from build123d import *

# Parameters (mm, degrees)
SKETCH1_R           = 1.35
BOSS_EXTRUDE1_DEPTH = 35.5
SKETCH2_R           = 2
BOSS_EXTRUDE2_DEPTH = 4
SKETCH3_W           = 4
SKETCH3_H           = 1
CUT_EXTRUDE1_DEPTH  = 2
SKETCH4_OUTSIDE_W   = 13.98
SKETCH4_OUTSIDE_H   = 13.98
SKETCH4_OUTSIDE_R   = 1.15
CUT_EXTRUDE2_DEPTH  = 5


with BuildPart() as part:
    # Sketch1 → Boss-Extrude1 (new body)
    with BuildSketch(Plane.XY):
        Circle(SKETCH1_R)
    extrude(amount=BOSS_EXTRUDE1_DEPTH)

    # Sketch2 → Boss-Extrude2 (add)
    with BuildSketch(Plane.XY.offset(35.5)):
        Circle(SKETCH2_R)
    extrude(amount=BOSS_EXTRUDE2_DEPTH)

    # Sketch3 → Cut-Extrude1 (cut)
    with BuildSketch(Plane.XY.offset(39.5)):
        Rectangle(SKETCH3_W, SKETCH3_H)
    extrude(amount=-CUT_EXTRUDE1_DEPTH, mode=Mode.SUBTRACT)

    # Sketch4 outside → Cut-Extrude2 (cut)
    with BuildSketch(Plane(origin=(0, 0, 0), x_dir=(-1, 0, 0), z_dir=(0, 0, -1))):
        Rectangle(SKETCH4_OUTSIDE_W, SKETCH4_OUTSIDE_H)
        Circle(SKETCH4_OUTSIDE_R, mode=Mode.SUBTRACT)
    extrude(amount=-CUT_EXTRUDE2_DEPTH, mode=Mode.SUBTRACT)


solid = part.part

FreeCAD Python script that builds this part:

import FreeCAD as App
import Part
import Sketcher
from FreeCAD import Vector

doc = App.newDocument("Part")
body = doc.addObject("PartDesign::Body", "Body")

# Sketch on XY plane
sketch1 = doc.addObject("Sketcher::SketchObject", "Sketch")
body.addObject(sketch1)
sketch1.AttachmentSupport = (doc.XY_Plane, [""])
sketch1.MapMode = "FlatFace"
sketch1.addGeometry(Part.Circle(Vector(0, 0, 0), Vector(0, 0, 1), 1.4), False)
sketch1.addConstraint([
    Sketcher.Constraint("Coincident", 0, 3, -1, 1),
    Sketcher.Constraint("Diameter", 0, 2.7),
])
pad1 = doc.addObject("PartDesign::Pad", "Pad")
body.addObject(pad1)
pad1.Profile = sketch1
pad1.Length = 35.5

# Sketch on XY plane
sketch2 = doc.addObject("Sketcher::SketchObject", "Sketch001")
body.addObject(sketch2)
sketch2.AttachmentSupport = (doc.XY_Plane, [""])
sketch2.MapMode = "FlatFace"
sketch2.AttachmentOffset = App.Placement(Vector(0, 0, 35.5), App.Rotation())
sketch2.addGeometry(Part.Circle(Vector(0, 0, 0), Vector(0, 0, 1), 2), False)
sketch2.addConstraint([
    Sketcher.Constraint("Coincident", 0, 3, -1, 1),
    Sketcher.Constraint("Diameter", 0, 4.0),
])
pad2 = doc.addObject("PartDesign::Pad", "Pad001")
body.addObject(pad2)
pad2.Profile = sketch2
pad2.Length = 4

# Sketch on XY plane
sketch3 = doc.addObject("Sketcher::SketchObject", "Sketch002")
body.addObject(sketch3)
sketch3.AttachmentSupport = (doc.XY_Plane, [""])
sketch3.MapMode = "FlatFace"
sketch3.AttachmentOffset = App.Placement(Vector(0, 0, 39.5), App.Rotation())
sketch3.addGeometry([
    Part.LineSegment(Vector(-2, 0.5, 0), Vector(-2, -0.5, 0)),
    Part.LineSegment(Vector(-2, -0.5, 0), Vector(2, -0.5, 0)),
    Part.LineSegment(Vector(2, -0.5, 0), Vector(2, 0.5, 0)),
    Part.LineSegment(Vector(2, 0.5, 0), Vector(-2, 0.5, 0)),
], False)
sketch3.addConstraint([
    Sketcher.Constraint("Coincident", 0, 2, 1, 1),
    Sketcher.Constraint("Coincident", 1, 2, 2, 1),
    Sketcher.Constraint("Coincident", 2, 2, 3, 1),
    Sketcher.Constraint("Coincident", 3, 2, 0, 1),
    Sketcher.Constraint("Vertical", 0),
    Sketcher.Constraint("Horizontal", 1),
    Sketcher.Constraint("Vertical", 2),
    Sketcher.Constraint("Horizontal", 3),
    Sketcher.Constraint("Symmetric", 0, 2, 2, 2, -1, 1),
    Sketcher.Constraint("DistanceX", 1, 1, 1, 2, 4.0),
    Sketcher.Constraint("DistanceY", 0, 2, 0, 1, 1.0),
])
pocket1 = doc.addObject("PartDesign::Pocket", "Pocket")
body.addObject(pocket1)
pocket1.Profile = sketch3
pocket1.Length = 2

# Sketch on XY plane
sketch4 = doc.addObject("Sketcher::SketchObject", "Sketch003")
body.addObject(sketch4)
sketch4.AttachmentSupport = (doc.XY_Plane, [""])
sketch4.MapMode = "FlatFace"
sketch4.addGeometry([
    Part.LineSegment(Vector(7, 7, 0), Vector(7, -7, 0)),  # 0
    Part.LineSegment(Vector(7, -7, 0), Vector(-7, -7, 0)),  # 1
    Part.LineSegment(Vector(-7, -7, 0), Vector(-7, 7, 0)),  # 2
    Part.LineSegment(Vector(-7, 7, 0), Vector(7, 7, 0)),  # 3
    Part.Circle(Vector(0, 0, 0), Vector(0, 0, 1), 1.1),  # 4
], False)
sketch4.addConstraint([
    Sketcher.Constraint("Coincident", 0, 2, 1, 1),
    Sketcher.Constraint("Coincident", 1, 2, 2, 1),
    Sketcher.Constraint("Coincident", 2, 2, 3, 1),
    Sketcher.Constraint("Coincident", 3, 2, 0, 1),
    Sketcher.Constraint("Vertical", 0),
    Sketcher.Constraint("Horizontal", 1),
    Sketcher.Constraint("Vertical", 2),
    Sketcher.Constraint("Horizontal", 3),
    Sketcher.Constraint("Coincident", 4, 3, -1, 1),
    Sketcher.Constraint("Symmetric", 0, 2, 2, 2, -1, 1),
    Sketcher.Constraint("Equal", 3, 0),
    Sketcher.Constraint("Diameter", 4, 2.3),
    Sketcher.Constraint("DistanceX", 1, 2, 1, 1, 13.98),
])
pocket2 = doc.addObject("PartDesign::Pocket", "Pocket001")
body.addObject(pocket2)
pocket2.Profile = sketch4
pocket2.Length = 5
pocket2.Reversed = True

doc.recompute()
